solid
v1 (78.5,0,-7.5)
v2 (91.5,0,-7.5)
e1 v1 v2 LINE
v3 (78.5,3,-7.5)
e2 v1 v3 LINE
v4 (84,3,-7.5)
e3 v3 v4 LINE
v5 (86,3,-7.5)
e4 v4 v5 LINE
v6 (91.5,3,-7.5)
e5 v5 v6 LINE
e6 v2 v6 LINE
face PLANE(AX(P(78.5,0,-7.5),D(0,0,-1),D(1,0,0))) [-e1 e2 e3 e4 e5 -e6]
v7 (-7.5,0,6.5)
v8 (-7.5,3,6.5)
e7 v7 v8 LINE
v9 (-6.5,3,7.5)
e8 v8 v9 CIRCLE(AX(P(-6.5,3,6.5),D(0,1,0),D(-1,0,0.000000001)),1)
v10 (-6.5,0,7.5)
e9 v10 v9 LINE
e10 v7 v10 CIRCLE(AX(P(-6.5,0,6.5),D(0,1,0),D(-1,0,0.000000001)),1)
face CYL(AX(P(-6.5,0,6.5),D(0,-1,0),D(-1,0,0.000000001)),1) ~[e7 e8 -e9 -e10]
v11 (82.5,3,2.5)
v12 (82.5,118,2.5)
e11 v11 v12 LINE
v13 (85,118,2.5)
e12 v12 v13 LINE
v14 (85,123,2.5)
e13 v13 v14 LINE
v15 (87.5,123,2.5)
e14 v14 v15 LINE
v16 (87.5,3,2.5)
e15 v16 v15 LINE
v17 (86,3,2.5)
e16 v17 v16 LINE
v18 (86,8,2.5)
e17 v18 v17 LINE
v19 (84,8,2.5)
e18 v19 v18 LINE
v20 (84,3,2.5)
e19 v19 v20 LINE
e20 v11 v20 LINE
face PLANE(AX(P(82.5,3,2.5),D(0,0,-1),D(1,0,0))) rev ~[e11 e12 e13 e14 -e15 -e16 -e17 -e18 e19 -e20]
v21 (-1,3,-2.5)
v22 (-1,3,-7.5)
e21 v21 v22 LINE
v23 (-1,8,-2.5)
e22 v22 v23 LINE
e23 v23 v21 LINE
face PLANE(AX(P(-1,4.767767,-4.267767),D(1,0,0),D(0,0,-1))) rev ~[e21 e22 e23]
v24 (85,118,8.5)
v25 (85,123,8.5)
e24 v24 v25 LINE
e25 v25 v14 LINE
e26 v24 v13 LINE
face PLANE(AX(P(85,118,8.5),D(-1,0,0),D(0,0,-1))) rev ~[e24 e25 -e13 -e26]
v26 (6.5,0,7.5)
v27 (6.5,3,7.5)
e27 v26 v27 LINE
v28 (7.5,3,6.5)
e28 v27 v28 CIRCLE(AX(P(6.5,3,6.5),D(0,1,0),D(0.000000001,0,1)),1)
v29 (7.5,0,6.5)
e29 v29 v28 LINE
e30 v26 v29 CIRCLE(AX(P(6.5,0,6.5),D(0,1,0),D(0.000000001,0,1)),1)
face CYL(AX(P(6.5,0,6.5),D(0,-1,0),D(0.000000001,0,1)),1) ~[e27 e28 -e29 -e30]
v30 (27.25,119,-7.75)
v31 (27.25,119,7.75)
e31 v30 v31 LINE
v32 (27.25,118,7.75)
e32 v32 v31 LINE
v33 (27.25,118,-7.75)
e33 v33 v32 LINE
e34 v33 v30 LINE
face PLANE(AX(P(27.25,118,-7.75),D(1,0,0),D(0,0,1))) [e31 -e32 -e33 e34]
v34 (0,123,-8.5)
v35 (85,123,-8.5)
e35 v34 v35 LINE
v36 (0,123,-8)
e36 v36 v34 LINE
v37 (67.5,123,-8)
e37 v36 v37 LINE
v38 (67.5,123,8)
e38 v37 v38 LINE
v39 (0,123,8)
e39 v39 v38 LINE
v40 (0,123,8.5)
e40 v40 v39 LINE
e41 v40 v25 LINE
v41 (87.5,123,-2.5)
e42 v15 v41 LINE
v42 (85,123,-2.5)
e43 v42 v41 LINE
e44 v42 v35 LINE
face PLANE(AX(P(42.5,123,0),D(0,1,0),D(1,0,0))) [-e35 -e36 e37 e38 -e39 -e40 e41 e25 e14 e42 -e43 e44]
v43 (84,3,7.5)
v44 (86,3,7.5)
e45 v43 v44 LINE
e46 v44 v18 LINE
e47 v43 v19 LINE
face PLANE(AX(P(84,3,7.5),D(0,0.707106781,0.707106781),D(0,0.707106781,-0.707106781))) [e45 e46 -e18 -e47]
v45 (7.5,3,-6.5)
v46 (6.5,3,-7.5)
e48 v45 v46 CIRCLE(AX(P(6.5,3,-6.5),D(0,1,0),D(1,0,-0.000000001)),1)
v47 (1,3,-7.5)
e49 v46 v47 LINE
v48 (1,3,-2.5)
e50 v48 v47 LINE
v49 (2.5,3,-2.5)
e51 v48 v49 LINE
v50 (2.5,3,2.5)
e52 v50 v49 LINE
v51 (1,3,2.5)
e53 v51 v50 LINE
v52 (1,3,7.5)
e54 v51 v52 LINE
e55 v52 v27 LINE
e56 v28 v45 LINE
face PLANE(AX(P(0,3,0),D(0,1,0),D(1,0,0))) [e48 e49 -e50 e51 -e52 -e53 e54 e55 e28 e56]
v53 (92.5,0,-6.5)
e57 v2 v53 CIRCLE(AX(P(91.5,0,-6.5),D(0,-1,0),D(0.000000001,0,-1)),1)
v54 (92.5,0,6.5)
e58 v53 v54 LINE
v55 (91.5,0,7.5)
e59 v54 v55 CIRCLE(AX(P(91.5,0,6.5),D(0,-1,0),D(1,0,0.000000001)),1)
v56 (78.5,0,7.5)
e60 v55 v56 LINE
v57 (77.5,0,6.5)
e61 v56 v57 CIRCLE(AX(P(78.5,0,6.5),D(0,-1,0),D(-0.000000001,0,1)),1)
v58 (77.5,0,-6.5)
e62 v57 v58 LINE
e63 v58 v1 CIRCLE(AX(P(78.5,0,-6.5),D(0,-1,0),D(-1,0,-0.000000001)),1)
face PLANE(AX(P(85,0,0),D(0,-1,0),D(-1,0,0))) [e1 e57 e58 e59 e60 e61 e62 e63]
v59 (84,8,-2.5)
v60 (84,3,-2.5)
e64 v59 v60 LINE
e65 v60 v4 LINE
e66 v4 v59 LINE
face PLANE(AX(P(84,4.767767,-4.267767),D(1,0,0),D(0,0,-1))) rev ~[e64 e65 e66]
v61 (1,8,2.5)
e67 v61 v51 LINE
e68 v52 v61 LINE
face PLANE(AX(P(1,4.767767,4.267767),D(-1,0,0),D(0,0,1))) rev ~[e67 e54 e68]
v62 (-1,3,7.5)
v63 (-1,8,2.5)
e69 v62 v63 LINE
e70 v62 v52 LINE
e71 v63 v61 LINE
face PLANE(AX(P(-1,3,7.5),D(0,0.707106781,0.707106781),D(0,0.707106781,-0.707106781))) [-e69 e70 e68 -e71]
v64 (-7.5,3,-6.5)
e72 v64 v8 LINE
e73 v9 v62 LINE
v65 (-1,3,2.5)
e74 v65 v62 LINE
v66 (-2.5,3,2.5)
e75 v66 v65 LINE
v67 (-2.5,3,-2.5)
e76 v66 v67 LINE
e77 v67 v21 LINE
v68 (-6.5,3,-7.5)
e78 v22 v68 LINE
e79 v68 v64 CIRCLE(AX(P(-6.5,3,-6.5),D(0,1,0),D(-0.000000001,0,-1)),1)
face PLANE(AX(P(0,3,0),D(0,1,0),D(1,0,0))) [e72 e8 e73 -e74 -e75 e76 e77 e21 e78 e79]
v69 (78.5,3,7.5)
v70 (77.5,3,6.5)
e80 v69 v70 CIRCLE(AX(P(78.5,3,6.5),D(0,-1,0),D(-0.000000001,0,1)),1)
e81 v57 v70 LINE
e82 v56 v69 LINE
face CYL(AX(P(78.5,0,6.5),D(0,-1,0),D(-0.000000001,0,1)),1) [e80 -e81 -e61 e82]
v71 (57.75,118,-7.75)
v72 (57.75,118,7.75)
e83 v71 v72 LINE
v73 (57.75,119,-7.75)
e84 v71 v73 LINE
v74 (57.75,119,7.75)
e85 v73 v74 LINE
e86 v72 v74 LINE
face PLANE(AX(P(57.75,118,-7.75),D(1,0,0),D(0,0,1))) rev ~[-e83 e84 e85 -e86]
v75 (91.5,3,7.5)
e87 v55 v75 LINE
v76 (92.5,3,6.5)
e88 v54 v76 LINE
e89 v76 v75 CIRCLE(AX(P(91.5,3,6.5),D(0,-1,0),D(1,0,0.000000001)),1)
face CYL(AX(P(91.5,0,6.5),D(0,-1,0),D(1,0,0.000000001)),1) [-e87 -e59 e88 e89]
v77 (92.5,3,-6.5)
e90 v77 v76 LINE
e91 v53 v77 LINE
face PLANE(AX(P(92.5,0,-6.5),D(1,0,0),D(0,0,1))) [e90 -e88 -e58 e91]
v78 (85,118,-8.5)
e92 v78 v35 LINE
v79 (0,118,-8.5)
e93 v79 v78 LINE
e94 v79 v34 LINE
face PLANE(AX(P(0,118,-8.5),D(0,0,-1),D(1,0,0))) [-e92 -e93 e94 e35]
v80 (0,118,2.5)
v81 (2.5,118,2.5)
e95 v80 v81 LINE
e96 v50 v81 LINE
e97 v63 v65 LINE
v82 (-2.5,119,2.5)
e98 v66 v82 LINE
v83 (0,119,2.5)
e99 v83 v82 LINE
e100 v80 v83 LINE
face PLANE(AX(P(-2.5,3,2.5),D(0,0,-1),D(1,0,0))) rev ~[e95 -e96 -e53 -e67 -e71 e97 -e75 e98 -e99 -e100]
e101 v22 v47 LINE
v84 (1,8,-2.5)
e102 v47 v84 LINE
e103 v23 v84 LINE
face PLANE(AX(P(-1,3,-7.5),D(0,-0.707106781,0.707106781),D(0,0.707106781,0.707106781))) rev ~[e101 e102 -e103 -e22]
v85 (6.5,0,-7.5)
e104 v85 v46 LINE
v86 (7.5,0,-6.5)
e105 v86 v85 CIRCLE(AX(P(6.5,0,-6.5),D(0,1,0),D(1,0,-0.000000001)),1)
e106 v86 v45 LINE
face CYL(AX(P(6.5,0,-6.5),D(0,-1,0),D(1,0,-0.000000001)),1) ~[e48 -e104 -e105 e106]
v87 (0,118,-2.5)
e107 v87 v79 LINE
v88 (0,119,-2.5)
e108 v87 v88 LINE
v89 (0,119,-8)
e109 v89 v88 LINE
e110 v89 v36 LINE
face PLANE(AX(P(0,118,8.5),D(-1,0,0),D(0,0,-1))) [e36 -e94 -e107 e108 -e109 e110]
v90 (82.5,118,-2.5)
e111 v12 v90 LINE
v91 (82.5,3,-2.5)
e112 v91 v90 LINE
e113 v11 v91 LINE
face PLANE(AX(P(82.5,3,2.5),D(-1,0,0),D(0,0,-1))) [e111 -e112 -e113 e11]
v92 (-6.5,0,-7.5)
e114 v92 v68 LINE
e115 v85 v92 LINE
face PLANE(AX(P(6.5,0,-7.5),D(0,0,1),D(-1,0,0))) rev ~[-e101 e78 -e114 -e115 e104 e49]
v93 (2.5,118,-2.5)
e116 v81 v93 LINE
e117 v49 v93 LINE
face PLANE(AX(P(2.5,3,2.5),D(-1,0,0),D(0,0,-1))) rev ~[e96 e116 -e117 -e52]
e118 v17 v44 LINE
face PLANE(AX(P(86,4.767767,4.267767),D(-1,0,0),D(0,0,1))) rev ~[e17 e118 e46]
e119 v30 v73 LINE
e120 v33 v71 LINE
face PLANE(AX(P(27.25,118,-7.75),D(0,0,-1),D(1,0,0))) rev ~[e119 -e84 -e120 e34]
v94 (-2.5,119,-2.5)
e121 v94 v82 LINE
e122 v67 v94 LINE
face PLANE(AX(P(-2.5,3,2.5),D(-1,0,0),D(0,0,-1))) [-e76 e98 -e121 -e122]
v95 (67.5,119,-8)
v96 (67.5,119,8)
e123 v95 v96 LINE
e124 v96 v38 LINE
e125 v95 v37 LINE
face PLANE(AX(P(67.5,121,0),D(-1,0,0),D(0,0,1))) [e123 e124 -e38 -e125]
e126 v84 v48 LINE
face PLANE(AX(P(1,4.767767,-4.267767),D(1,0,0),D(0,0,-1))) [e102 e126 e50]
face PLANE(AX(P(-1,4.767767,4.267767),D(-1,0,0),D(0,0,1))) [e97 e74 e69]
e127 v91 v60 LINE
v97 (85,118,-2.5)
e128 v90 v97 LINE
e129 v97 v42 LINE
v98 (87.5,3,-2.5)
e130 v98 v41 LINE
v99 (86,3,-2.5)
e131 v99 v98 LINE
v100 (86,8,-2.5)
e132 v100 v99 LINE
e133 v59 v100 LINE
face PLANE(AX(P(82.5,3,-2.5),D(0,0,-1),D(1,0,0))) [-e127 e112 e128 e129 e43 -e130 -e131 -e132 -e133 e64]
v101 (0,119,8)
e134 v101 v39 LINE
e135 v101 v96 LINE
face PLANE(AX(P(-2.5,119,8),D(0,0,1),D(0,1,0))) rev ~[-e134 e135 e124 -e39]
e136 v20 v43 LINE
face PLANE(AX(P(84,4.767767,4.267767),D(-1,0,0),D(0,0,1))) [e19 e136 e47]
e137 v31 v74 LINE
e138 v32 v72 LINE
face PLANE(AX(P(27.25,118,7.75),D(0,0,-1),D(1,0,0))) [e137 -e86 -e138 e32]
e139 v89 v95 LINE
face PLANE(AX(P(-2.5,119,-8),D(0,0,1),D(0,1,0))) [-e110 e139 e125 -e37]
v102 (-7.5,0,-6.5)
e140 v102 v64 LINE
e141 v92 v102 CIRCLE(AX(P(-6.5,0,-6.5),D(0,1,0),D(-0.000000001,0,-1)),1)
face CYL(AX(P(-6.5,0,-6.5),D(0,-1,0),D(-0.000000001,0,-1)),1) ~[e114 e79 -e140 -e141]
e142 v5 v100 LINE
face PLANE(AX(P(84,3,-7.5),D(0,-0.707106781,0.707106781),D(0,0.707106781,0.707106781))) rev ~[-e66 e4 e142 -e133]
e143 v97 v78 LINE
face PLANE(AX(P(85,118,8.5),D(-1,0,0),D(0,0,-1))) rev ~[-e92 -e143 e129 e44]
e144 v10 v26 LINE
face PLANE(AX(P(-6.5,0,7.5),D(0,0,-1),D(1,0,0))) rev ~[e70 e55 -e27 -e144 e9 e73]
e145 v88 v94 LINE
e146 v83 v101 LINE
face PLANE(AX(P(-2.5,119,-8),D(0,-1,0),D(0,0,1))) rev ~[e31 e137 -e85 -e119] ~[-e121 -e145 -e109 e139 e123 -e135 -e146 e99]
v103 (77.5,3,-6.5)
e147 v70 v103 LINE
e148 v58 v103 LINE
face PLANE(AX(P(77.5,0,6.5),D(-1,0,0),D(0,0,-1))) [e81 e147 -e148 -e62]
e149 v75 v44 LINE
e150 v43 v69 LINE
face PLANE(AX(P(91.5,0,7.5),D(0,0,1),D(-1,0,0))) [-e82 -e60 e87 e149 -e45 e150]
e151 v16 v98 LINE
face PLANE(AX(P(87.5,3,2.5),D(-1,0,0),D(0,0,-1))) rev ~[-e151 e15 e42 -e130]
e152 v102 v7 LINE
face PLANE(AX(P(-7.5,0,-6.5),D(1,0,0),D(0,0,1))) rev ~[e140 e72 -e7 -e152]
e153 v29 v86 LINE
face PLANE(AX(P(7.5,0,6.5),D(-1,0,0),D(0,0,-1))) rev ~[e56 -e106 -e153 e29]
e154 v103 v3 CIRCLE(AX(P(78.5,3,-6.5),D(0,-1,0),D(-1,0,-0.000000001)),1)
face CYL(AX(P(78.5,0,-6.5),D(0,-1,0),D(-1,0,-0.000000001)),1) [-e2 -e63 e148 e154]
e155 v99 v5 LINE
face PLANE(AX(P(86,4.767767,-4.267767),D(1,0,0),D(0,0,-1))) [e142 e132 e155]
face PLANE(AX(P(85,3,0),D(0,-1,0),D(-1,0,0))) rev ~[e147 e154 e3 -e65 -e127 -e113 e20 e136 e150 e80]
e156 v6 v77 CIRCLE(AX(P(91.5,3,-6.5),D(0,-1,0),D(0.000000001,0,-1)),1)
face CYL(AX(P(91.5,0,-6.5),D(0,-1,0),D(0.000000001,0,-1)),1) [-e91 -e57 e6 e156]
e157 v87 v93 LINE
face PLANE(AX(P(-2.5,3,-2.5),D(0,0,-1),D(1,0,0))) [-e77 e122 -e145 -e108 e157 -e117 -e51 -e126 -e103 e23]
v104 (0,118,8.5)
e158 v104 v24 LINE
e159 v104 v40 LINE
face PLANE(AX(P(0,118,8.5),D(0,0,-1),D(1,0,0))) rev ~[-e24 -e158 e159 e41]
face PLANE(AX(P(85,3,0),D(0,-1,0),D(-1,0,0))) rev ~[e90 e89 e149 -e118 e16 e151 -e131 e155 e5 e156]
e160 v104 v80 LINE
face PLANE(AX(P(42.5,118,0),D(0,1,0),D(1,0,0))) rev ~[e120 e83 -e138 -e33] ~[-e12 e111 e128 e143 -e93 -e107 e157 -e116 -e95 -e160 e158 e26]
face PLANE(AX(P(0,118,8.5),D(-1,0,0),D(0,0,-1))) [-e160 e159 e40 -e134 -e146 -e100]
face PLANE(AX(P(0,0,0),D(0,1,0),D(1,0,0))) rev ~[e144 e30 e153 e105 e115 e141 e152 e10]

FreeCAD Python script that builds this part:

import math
import FreeCAD as App
import Part
import Sketcher
from FreeCAD import Vector
Q = App.Units.Quantity


def add_polygon(sketch, points):
    """Adds a closed chain of lines whose ends are joined by coincident constraints."""
    first, n = sketch.GeometryCount, len(points)
    for a, b in zip(points, points[1:] + points[:1]):
        sketch.addGeometry(Part.LineSegment(App.Vector(*a, 0), App.Vector(*b, 0)), False)
    for i in range(n):
        sketch.addConstraint(Sketcher.Constraint("Coincident", first + i, 2, first + (i + 1) % n, 1))

doc = App.newDocument("Part")
body = doc.addObject("PartDesign::Body", "Body")

# Sketch on XZ plane
sketch1 = body.newObject("Sketcher::SketchObject", "Sketch")
sketch1.AttachmentSupport = (doc.getObject("XZ_Plane"), [""])
sketch1.MapMode = "FlatFace"
sketch1.addGeometry([
    Part.LineSegment(Vector(-6.5, 7.5, 0), Vector(6.5, 7.5, 0)),  # 0
    Part.ArcOfCircle(Part.Circle(Vector(6.5, 6.5, 0), Vector(0, 0, 1), 1), math.radians(0), math.radians(90)),  # 1
    Part.LineSegment(Vector(7.5, 6.5, 0), Vector(7.5, -6.5, 0)),  # 2
    Part.ArcOfCircle(Part.Circle(Vector(6.5, -6.5, 0), Vector(0, 0, 1), 1), math.radians(-90), math.radians(0)),  # 3
    Part.LineSegment(Vector(6.5, -7.5, 0), Vector(-6.5, -7.5, 0)),  # 4
    Part.ArcOfCircle(Part.Circle(Vector(-6.5, -6.5, 0), Vector(0, 0, 1), 1), math.radians(-180), math.radians(-90)),  # 5
    Part.LineSegment(Vector(-7.5, -6.5, 0), Vector(-7.5, 6.5, 0)),  # 6
    Part.ArcOfCircle(Part.Circle(Vector(-6.5, 6.5, 0), Vector(0, 0, 1), 1), math.radians(90), math.radians(180)),  # 7
], False)
sketch1.addConstraint([
    Sketcher.Constraint("Tangent", 0, 2, 1, 2),
    Sketcher.Constraint("Tangent", 1, 1, 2, 1),
    Sketcher.Constraint("Tangent", 2, 2, 3, 2),
    Sketcher.Constraint("Tangent", 3, 1, 4, 1),
    Sketcher.Constraint("Tangent", 4, 2, 5, 2),
    Sketcher.Constraint("Tangent", 5, 1, 6, 1),
    Sketcher.Constraint("Tangent", 6, 2, 7, 2),
    Sketcher.Constraint("Tangent", 7, 1, 0, 1),
    Sketcher.Constraint("Horizontal", 0),
    Sketcher.Constraint("Vertical", 2),
    Sketcher.Constraint("Horizontal", 4),
    Sketcher.Constraint("Vertical", 6),
    Sketcher.Constraint("Equal", 1, 3),
    Sketcher.Constraint("Equal", 3, 5),
    Sketcher.Constraint("Equal", 5, 7),
    Sketcher.Constraint("Symmetric", 1, 3, 5, 3, -1, 1),
    Sketcher.Constraint("Equal", 4, 2),
    Sketcher.Constraint("Radius", 1, Q("1 mm")),
    Sketcher.Constraint("DistanceX", 0, 1, 0, 2, Q("13 mm")),
])
pad1 = body.newObject("PartDesign::Pad", "Pad")
pad1.Profile = sketch1
pad1.Length = 3
pad1.Reversed = True

# Sketch on YZ plane
sketch2 = body.newObject("Sketcher::SketchObject", "Sketch001")
sketch2.AttachmentSupport = (doc.getObject("YZ_Plane"), [""])
sketch2.MapMode = "FlatFace"
add_polygon(sketch2, [(8, 2), (3, 8), (3, 2)])  # lines 0-2
add_polygon(sketch2, [(3, -2), (3, -8), (8, -2)])  # lines 3-5
sketch2.addConstraint([
    Sketcher.Constraint("Vertical", 1),
    Sketcher.Constraint("Horizontal", 2),
    Sketcher.Constraint("Vertical", 3),
    Sketcher.Constraint("Horizontal", 5),
    Sketcher.Constraint("Symmetric", 0, 2, 3, 2, -1),
    Sketcher.Constraint("Symmetric", 2, 2, 4, 2, -1),
    Sketcher.Constraint("Perpendicular", 0, 4),
    Sketcher.Constraint("DistanceX", 2, 1, 2, 2, Q("5 mm")),
    Sketcher.Constraint("DistanceX", -1, 1, 0, 2, Q("3 mm")),
    Sketcher.Constraint("DistanceY", 3, 2, 1, 2, Q("10 mm")),
])
pad2 = body.newObject("PartDesign::Pad", "Pad001")
pad2.Profile = sketch2
pad2.Type = "TwoLengths"
pad2.Length = 1
pad2.Length2 = 1

# Sketch on XZ plane
sketch3 = body.newObject("Sketcher::SketchObject", "Sketch002")
sketch3.AttachmentSupport = (doc.getObject("XZ_Plane"), [""])
sketch3.MapMode = "FlatFace"
sketch3.AttachmentOffset = App.Placement(Vector(0, 0, -3), App.Rotation())
add_polygon(sketch3, [(-2, -2), (-2, 2), (2, 2), (2, -2)])  # lines 0-3
sketch3.addConstraint([
    Sketcher.Constraint("Vertical", 0),
    Sketcher.Constraint("Horizontal", 1),
    Sketcher.Constraint("Vertical", 2),
    Sketcher.Constraint("Horizontal", 3),
    Sketcher.Constraint("Symmetric", 0, 2, 2, 2, -1, 1),
    Sketcher.Constraint("Equal", 3, 0),
    Sketcher.Constraint("DistanceX", 1, 1, 1, 2, Q("5 mm")),
])
pad3 = body.newObject("PartDesign::Pad", "Pad002")
pad3.Profile = sketch3
pad3.Length = 120
pad3.Reversed = True
body2 = doc.addObject("PartDesign::Body", "Body001")

# Sketch on XZ plane
sketch4 = body2.newObject("Sketcher::SketchObject", "Sketch003")
sketch4.AttachmentSupport = (doc.getObject("XZ_Plane001"), [""])
sketch4.MapMode = "FlatFace"
sketch4.addGeometry([
    Part.LineSegment(Vector(77.5, -6.5, 0), Vector(77.5, 6.5, 0)),  # 0
    Part.ArcOfCircle(Part.Circle(Vector(78.5, 6.5, 0), Vector(0, 0, 1), 1), math.radians(90), math.radians(180)),  # 1
    Part.LineSegment(Vector(78.5, 7.5, 0), Vector(91.5, 7.5, 0)),  # 2
    Part.ArcOfCircle(Part.Circle(Vector(91.5, 6.5, 0), Vector(0, 0, 1), 1), math.radians(0), math.radians(90)),  # 3
    Part.LineSegment(Vector(92.5, 6.5, 0), Vector(92.5, -6.5, 0)),  # 4
    Part.ArcOfCircle(Part.Circle(Vector(91.5, -6.5, 0), Vector(0, 0, 1), 1), math.radians(-90), math.radians(0)),  # 5
    Part.LineSegment(Vector(91.5, -7.5, 0), Vector(78.5, -7.5, 0)),  # 6
    Part.ArcOfCircle(Part.Circle(Vector(78.5, -6.5, 0), Vector(0, 0, 1), 1), math.radians(-180), math.radians(-90)),  # 7
], False)
sketch4.addConstraint([
    Sketcher.Constraint("Tangent", 0, 2, 1, 2),
    Sketcher.Constraint("Tangent", 1, 1, 2, 1),
    Sketcher.Constraint("Tangent", 2, 2, 3, 2),
    Sketcher.Constraint("Tangent", 3, 1, 4, 1),
    Sketcher.Constraint("Tangent", 4, 2, 5, 2),
    Sketcher.Constraint("Tangent", 5, 1, 6, 1),
    Sketcher.Constraint("Tangent", 6, 2, 7, 2),
    Sketcher.Constraint("Tangent", 7, 1, 0, 1),
    Sketcher.Constraint("Vertical", 0),
    Sketcher.Constraint("Horizontal", 2),
    Sketcher.Constraint("Vertical", 4),
    Sketcher.Constraint("Horizontal", 6),
    Sketcher.Constraint("Equal", 1, 3),
    Sketcher.Constraint("Equal", 3, 5),
    Sketcher.Constraint("Equal", 5, 7),
    Sketcher.Constraint("Equal", 6, 0),
    Sketcher.Constraint("Radius", 1, Q("1 mm")),
    Sketcher.Constraint("DistanceX", 2, 1, 2, 2, Q("13 mm")),
    Sketcher.Constraint("DistanceX", -1, 1, 1, 3, Q("78.5 mm")),
    Sketcher.Constraint("DistanceY", -1, 1, 1, 3, Q("6.5 mm")),
])
pad4 = body2.newObject("PartDesign::Pad", "Pad003")
pad4.Profile = sketch4
pad4.Length = 3
pad4.Reversed = True

# Sketch on YZ plane
sketch5 = body2.newObject("Sketcher::SketchObject", "Sketch004")
sketch5.AttachmentSupport = (doc.getObject("YZ_Plane001"), [""])
sketch5.MapMode = "FlatFace"
sketch5.AttachmentOffset = App.Placement(Vector(0, 0, 85), App.Rotation())
add_polygon(sketch5, [(8, 2), (3, 8), (3, 2)])  # lines 0-2
add_polygon(sketch5, [(8, -2), (3, -2), (3, -8)])  # lines 3-5
sketch5.addConstraint([
    Sketcher.Constraint("Vertical", 1),
    Sketcher.Constraint("Horizontal", 2),
    Sketcher.Constraint("Horizontal", 3),
    Sketcher.Constraint("Vertical", 4),
    Sketcher.Constraint("Symmetric", 1, 2, 3, 2, -1),
    Sketcher.Constraint("Perpendicular", 0, 5),
    Sketcher.Constraint("Vertical", 2, 2, 5, 2),
    Sketcher.Constraint("Equal", 3, 1),
    Sketcher.Constraint("DistanceX", 2, 1, 2, 2, Q("5 mm")),
    Sketcher.Constraint("DistanceX", -1, 1, 0, 2, Q("3 mm")),
    Sketcher.Constraint("DistanceY", 3, 2, 1, 2, Q("5 mm")),
])
pad5 = body2.newObject("PartDesign::Pad", "Pad004")
pad5.Profile = sketch5
pad5.Type = "TwoLengths"
pad5.Length = 1
pad5.Length2 = 1

# Sketch on XZ plane
sketch6 = body2.newObject("Sketcher::SketchObject", "Sketch005")
sketch6.AttachmentSupport = (doc.getObject("XZ_Plane001"), [""])
sketch6.MapMode = "FlatFace"
sketch6.AttachmentOffset = App.Placement(Vector(0, 0, -3), App.Rotation())
add_polygon(sketch6, [(82, -2), (82, 2), (88, 2), (88, -2)])  # lines 0-3
sketch6.addConstraint([
    Sketcher.Constraint("Vertical", 0),
    Sketcher.Constraint("Horizontal", 1),
    Sketcher.Constraint("Vertical", 2),
    Sketcher.Constraint("Horizontal", 3),
    Sketcher.Constraint("Equal", 3, 0),
    Sketcher.Constraint("DistanceX", 1, 1, 1, 2, Q("5 mm")),
    Sketcher.Constraint("DistanceX", -1, 1, 0, 2, Q("82.5 mm")),
    Sketcher.Constraint("DistanceY", -1, 1, 0, 2, Q("2.5 mm")),
])
pad6 = body2.newObject("PartDesign::Pad", "Pad005")
pad6.Profile = sketch6
pad6.Length = 120
pad6.Reversed = True
body.AllowCompound = True
doc.recompute()

boolean = body.newObject("PartDesign::Boolean", "Boolean")
boolean.Type = "Fuse"
boolean.addObjects([body2])

# Sketch on XZ plane
sketch7 = body.newObject("Sketcher::SketchObject", "Sketch006")
sketch7.AttachmentSupport = (doc.getObject("XZ_Plane"), [""])
sketch7.MapMode = "FlatFace"
sketch7.AttachmentOffset = App.Placement(Vector(0, 0, -118), App.Rotation())
add_polygon(sketch7, [(0, -8), (0, 8), (85, 8), (85, -8)])  # lines 0-3
sketch7.addConstraint([
    Sketcher.Constraint("Vertical", 0),
    Sketcher.Constraint("Horizontal", 1),
    Sketcher.Constraint("Vertical", 2),
    Sketcher.Constraint("Horizontal", 3),
    Sketcher.Constraint("Symmetric", 0, 2, 3, 2, -1, 1),
    Sketcher.Constraint("DistanceX", 1, 1, 1, 2, Q("85 mm")),
    Sketcher.Constraint("DistanceY", 0, 1, 0, 2, Q("17 mm")),
])
pad7 = body.newObject("PartDesign::Pad", "Pad006")
pad7.Profile = sketch7
pad7.Length = 5
pad7.Reversed = True

# Sketch on YZ plane
sketch8 = body.newObject("Sketcher::SketchObject", "Sketch007")
sketch8.AttachmentSupport = (doc.getObject("YZ_Plane"), [""])
sketch8.MapMode = "FlatFace"
sketch8.AttachmentOffset = App.Placement(Vector(0, 0, -2.5), App.Rotation())
add_polygon(sketch8, [(123, -8), (119, -8), (119, 8), (123, 8)])  # lines 0-3
sketch8.addConstraint([
    Sketcher.Constraint("Horizontal", 0),
    Sketcher.Constraint("Vertical", 1),
    Sketcher.Constraint("Horizontal", 2),
    Sketcher.Constraint("Vertical", 3),
    Sketcher.Constraint("DistanceX", 0, 2, 0, 1, Q("4 mm")),
    Sketcher.Constraint("DistanceY", 1, 1, 1, 2, Q("16 mm")),
    Sketcher.Constraint("DistanceX", -1, 1, 0, 2, Q("119 mm")),
    Sketcher.Constraint("DistanceY", 0, 2, -1, 1, Q("8 mm")),
])
pocket1 = body.newObject("PartDesign::Pocket", "Pocket")
pocket1.Profile = sketch8
pocket1.Length = 70
pocket1.Reversed = True

# Sketch on XZ plane
sketch9 = body.newObject("Sketcher::SketchObject", "Sketch008")
sketch9.AttachmentSupport = (doc.getObject("XZ_Plane"), [""])
sketch9.MapMode = "FlatFace"
sketch9.AttachmentOffset = App.Placement(Vector(0, 0, -118), App.Rotation())
add_polygon(sketch9, [(27, 8), (27, -8), (58, -8), (58, 8)])  # lines 0-3
sketch9.addConstraint([
    Sketcher.Constraint("Vertical", 0),
    Sketcher.Constraint("Horizontal", 1),
    Sketcher.Constraint("Vertical", 2),
    Sketcher.Constraint("Horizontal", 3),
    Sketcher.Constraint("DistanceX", 1, 1, 1, 2, Q("30.5 mm")),
    Sketcher.Constraint("DistanceY", 0, 2, 0, 1, Q("15.5 mm")),
    Sketcher.Constraint("DistanceX", -1, 1, 0, 2, Q("27.25 mm")),
    Sketcher.Constraint("DistanceY", 0, 2, -1, 1, Q("7.75 mm")),
])
pocket2 = body.newObject("PartDesign::Pocket", "Pocket001")
pocket2.Profile = sketch9
pocket2.Length = 2

doc.recompute()
